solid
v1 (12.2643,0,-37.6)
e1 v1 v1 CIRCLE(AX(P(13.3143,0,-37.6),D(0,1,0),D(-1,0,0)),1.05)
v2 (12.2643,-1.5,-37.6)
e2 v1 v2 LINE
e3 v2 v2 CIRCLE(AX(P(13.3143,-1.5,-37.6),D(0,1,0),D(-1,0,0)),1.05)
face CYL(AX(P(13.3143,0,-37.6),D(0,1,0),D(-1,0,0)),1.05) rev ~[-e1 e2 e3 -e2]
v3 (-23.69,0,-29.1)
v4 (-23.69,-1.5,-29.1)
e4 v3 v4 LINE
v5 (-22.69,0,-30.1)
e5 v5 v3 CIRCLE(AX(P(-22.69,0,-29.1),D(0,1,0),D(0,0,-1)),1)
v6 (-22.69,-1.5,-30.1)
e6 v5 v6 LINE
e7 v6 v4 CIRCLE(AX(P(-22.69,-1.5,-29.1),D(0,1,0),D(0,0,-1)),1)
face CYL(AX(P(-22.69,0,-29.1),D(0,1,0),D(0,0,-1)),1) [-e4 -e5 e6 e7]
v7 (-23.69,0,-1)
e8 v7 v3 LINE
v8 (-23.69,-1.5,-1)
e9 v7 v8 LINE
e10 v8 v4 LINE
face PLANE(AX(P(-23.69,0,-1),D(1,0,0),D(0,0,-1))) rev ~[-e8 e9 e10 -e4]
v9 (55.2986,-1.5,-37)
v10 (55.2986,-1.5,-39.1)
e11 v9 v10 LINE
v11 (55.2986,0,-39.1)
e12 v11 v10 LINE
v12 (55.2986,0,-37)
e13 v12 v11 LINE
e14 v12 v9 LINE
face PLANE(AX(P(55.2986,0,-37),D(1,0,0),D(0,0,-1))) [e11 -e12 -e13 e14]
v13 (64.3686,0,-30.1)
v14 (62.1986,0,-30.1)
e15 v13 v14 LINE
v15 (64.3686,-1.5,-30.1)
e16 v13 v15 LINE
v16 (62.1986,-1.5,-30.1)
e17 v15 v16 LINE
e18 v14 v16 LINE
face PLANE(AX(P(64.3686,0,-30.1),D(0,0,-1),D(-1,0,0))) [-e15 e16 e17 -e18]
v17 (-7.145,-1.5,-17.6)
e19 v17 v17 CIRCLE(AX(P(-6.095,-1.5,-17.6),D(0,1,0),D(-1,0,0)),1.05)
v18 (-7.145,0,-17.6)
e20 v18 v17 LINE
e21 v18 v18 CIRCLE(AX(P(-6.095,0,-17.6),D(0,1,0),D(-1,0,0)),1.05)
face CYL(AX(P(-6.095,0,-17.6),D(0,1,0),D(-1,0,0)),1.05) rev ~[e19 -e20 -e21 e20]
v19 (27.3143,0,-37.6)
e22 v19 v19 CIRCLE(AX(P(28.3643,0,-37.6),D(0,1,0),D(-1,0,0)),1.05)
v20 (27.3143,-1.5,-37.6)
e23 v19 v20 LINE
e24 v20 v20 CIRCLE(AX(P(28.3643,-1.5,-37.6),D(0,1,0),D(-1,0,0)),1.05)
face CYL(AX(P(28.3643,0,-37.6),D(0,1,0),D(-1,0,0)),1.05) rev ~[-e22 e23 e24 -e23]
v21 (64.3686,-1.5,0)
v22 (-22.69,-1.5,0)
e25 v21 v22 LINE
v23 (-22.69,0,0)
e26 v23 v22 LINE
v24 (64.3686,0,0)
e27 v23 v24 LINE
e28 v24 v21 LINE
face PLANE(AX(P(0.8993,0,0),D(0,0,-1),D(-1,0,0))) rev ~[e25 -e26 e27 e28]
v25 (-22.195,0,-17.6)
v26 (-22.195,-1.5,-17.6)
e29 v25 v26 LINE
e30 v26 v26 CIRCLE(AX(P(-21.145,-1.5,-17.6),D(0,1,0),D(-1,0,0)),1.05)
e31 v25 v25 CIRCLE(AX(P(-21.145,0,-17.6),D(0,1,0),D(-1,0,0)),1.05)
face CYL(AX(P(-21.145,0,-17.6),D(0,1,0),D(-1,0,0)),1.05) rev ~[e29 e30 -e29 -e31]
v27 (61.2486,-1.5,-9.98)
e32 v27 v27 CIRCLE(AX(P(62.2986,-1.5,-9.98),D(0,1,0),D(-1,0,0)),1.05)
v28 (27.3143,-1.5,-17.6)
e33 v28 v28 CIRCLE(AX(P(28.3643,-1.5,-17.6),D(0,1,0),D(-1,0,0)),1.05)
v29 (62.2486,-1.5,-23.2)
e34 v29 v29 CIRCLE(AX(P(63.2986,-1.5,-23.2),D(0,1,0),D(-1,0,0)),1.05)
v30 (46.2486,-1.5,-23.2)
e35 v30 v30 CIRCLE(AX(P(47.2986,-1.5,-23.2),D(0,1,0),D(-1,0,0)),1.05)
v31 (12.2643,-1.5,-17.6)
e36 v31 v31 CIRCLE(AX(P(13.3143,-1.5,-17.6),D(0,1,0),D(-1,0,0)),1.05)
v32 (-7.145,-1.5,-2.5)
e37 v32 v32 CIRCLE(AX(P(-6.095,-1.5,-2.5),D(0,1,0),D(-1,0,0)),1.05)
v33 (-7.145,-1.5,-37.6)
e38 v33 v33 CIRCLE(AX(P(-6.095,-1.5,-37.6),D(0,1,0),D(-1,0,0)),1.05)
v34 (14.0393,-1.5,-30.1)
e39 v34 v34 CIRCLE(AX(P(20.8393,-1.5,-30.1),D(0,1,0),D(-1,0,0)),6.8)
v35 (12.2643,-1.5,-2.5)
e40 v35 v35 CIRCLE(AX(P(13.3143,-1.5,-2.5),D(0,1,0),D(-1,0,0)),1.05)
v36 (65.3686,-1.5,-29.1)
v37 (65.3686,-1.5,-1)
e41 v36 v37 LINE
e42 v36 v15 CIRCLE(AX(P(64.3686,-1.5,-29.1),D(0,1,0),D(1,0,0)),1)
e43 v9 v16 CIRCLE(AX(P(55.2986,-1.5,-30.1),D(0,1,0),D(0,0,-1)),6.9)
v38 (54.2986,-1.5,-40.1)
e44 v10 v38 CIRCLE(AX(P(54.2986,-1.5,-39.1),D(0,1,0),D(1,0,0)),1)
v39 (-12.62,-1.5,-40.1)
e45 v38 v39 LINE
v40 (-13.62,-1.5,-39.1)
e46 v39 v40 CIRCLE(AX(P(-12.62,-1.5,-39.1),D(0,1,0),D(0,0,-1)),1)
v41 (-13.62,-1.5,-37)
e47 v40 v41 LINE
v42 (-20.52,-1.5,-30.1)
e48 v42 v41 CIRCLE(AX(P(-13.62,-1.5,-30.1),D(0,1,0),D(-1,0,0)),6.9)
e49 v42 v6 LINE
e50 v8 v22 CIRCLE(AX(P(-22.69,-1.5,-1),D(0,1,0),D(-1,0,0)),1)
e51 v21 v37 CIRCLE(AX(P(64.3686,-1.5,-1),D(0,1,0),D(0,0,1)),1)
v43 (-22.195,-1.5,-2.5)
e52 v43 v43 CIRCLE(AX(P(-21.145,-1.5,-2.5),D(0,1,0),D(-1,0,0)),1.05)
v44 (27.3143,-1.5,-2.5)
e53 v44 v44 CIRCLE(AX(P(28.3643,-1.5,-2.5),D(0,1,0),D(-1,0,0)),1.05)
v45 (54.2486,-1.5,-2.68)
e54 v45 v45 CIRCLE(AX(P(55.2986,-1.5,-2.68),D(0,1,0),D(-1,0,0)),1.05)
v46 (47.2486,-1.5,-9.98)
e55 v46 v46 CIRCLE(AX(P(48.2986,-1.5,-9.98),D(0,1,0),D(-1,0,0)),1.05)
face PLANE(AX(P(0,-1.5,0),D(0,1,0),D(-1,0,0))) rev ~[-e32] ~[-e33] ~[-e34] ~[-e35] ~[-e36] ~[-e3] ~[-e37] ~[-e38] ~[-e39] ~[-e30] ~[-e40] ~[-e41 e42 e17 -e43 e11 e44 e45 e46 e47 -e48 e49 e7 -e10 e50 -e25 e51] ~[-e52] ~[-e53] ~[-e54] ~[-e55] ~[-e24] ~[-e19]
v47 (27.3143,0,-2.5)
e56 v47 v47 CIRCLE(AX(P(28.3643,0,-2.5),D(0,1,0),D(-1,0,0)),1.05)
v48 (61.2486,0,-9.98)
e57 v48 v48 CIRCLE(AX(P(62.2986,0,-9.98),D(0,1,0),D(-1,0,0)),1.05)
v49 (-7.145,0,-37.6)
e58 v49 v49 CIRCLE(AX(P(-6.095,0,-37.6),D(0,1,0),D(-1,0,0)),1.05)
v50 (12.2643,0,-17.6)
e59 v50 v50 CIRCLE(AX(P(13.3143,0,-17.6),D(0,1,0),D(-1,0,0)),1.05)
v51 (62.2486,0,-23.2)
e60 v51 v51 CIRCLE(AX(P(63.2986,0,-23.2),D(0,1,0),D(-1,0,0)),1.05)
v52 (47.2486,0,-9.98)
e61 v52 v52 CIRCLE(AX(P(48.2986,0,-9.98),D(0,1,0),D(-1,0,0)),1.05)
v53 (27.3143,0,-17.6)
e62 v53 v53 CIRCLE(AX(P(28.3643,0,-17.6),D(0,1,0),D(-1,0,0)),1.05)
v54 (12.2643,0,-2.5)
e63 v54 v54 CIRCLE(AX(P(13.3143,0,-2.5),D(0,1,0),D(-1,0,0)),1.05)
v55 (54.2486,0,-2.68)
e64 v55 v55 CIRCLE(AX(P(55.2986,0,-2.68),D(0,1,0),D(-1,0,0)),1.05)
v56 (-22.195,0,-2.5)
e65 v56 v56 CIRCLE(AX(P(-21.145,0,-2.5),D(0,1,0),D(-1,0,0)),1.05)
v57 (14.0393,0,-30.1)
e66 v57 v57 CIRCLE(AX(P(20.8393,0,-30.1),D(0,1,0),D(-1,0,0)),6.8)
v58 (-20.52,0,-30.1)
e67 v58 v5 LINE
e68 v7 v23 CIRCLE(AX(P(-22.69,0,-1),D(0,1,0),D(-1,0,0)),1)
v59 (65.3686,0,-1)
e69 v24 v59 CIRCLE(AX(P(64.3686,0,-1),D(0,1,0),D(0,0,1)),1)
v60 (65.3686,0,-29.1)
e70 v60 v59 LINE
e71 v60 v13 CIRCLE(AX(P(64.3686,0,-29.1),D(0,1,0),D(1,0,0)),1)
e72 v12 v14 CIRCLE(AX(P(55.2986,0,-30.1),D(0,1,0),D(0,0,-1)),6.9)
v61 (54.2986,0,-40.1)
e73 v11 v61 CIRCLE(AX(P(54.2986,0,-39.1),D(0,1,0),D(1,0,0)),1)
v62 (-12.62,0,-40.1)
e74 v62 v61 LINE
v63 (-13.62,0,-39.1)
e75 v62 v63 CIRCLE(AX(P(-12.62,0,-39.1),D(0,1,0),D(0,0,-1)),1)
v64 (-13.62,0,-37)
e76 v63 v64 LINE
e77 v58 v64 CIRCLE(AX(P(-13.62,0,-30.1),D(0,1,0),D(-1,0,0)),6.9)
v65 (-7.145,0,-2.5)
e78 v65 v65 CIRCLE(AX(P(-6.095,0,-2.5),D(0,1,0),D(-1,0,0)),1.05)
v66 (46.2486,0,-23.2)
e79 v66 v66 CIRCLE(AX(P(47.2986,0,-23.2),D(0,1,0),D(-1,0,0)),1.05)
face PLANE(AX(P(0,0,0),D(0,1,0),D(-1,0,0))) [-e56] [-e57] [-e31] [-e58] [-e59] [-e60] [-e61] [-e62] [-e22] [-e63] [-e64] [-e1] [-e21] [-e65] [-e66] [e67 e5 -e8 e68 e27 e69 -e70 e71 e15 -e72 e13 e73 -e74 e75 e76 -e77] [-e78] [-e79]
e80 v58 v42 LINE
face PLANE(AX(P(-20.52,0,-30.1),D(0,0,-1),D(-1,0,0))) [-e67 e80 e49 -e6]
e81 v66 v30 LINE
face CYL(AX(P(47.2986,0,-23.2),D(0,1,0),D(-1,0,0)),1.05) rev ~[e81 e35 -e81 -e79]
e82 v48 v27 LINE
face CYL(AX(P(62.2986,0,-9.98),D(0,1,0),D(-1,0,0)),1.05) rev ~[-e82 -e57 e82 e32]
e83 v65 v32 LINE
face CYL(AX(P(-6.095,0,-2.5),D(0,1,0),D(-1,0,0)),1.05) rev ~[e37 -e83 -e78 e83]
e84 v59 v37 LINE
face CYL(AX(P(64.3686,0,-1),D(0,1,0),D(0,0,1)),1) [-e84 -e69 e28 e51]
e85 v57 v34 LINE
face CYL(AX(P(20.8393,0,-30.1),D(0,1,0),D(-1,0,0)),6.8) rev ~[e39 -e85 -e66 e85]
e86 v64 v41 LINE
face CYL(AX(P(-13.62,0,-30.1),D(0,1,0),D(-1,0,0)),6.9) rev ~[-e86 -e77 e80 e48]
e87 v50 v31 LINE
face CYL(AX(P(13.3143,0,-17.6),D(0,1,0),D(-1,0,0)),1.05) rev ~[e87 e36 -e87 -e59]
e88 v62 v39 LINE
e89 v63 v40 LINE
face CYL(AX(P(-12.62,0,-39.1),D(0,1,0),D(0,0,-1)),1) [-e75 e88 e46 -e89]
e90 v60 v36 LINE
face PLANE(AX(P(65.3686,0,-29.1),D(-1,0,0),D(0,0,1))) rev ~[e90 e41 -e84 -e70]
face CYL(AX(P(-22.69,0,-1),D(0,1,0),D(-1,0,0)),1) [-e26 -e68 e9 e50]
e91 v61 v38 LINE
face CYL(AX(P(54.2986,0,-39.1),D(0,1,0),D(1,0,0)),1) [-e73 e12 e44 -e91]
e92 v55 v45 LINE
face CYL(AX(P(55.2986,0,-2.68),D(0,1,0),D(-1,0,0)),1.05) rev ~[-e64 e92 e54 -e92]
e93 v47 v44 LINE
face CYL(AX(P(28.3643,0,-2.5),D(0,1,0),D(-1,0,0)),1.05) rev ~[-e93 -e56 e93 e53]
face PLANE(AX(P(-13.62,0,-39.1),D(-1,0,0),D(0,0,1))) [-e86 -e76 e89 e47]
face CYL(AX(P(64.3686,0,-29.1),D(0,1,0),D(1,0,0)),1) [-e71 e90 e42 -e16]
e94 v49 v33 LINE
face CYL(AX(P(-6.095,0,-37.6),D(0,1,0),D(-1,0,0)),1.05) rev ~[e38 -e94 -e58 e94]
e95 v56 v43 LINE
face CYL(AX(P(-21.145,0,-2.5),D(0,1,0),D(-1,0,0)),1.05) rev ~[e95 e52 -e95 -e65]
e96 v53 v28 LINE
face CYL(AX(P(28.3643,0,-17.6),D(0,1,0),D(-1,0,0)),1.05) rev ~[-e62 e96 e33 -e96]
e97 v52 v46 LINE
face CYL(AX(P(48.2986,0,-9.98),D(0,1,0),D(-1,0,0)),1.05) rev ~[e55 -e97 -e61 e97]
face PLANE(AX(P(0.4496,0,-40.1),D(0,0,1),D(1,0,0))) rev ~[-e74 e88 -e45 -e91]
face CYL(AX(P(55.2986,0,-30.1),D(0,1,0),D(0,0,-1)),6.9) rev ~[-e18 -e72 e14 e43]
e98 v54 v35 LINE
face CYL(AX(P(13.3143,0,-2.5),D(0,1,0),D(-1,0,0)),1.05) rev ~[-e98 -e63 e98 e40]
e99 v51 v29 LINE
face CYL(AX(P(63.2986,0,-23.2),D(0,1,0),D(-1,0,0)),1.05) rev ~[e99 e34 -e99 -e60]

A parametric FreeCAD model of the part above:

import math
import FreeCAD as App
import Part
import Sketcher
Q = App.Units.Quantity

doc = App.newDocument("Part")
body = doc.addObject("PartDesign::Body", "Body")

sketch1 = body.newObject("Sketcher::SketchObject", "Sketch")
sketch1.AttachmentSupport = (doc.getObject("XZ_Plane"), [""])
sketch1.MapMode = "FlatFace"
sketch1.addGeometry(Part.ArcOfCircle(Part.Circle(App.Vector(-12.6, -39.1, 0), App.Vector(0, 0, 1), 1), math.radians(180), math.radians(270)), False)
sketch1.addGeometry(Part.LineSegment(App.Vector(-13.6, -39.1, 0), App.Vector(-13.6, -37, 0)), False)
sketch1.addGeometry(Part.ArcOfCircle(Part.Circle(App.Vector(-13.6, -30.1, 0), App.Vector(0, 0, 1), 6.9), math.radians(-90), math.radians(180)), False)
sketch1.addGeometry(Part.LineSegment(App.Vector(-20.5, -30.1, 0), App.Vector(-22.7, -30.1, 0)), False)
sketch1.addGeometry(Part.ArcOfCircle(Part.Circle(App.Vector(-22.7, -29.1, 0), App.Vector(0, 0, 1), 1), math.radians(180), math.radians(270)), False)
sketch1.addGeometry(Part.LineSegment(App.Vector(-23.7, -29.1, 0), App.Vector(-23.7, -1, 0)), False)
sketch1.addGeometry(Part.ArcOfCircle(Part.Circle(App.Vector(-22.7, -1, 0), App.Vector(0, 0, 1), 1), math.radians(90), math.radians(180)), False)
sketch1.addGeometry(Part.LineSegment(App.Vector(-22.7, 0, 0), App.Vector(64.4, 0, 0)), False)
sketch1.addGeometry(Part.ArcOfCircle(Part.Circle(App.Vector(64.4, -1, 0), App.Vector(0, 0, 1), 1), math.radians(0), math.radians(90)), False)
sketch1.addGeometry(Part.LineSegment(App.Vector(65.4, -1, 0), App.Vector(65.4, -29.1, 0)), False)
sketch1.addGeometry(Part.ArcOfCircle(Part.Circle(App.Vector(64.4, -29.1, 0), App.Vector(0, 0, 1), 1), math.radians(-90), math.radians(0)), False)
sketch1.addGeometry(Part.LineSegment(App.Vector(64.4, -30.1, 0), App.Vector(62.2, -30.1, 0)), False)
sketch1.addGeometry(Part.ArcOfCircle(Part.Circle(App.Vector(55.3, -30.1, 0), App.Vector(0, 0, 1), 6.9), math.radians(0), math.radians(270)), False)
sketch1.addGeometry(Part.LineSegment(App.Vector(55.3, -37, 0), App.Vector(55.3, -39.1, 0)), False)
sketch1.addGeometry(Part.ArcOfCircle(Part.Circle(App.Vector(54.3, -39.1, 0), App.Vector(0, 0, 1), 1), math.radians(-90), math.radians(0)), False)
sketch1.addGeometry(Part.LineSegment(App.Vector(54.3, -40.1, 0), App.Vector(-12.6, -40.1, 0)), False)
sketch1.addGeometry(Part.Circle(App.Vector(13.3, -2.5, 0), App.Vector(0, 0, 1), 1.1), False)
sketch1.addGeometry(Part.Circle(App.Vector(28.4, -37.6, 0), App.Vector(0, 0, 1), 1.1), False)
sketch1.addGeometry(Part.Circle(App.Vector(13.3, -37.6, 0), App.Vector(0, 0, 1), 1.1), False)
sketch1.addGeometry(Part.Circle(App.Vector(20.8, -30.1, 0), App.Vector(0, 0, 1), 6.8), False)
sketch1.addGeometry(Part.Circle(App.Vector(28.4, -17.6, 0), App.Vector(0, 0, 1), 1.1), False)
sketch1.addGeometry(Part.Circle(App.Vector(28.4, -2.5, 0), App.Vector(0, 0, 1), 1.1), False)
sketch1.addGeometry(Part.Circle(App.Vector(13.3, -17.6, 0), App.Vector(0, 0, 1), 1.1), False)
sketch1.addGeometry(Part.Circle(App.Vector(-21.1, -2.5, 0), App.Vector(0, 0, 1), 1.1), False)
sketch1.addGeometry(Part.Circle(App.Vector(-6.1, -37.6, 0), App.Vector(0, 0, 1), 1.1), False)
sketch1.addGeometry(Part.Circle(App.Vector(-6.1, -17.6, 0), App.Vector(0, 0, 1), 1.1), False)
sketch1.addGeometry(Part.Circle(App.Vector(-21.1, -17.6, 0), App.Vector(0, 0, 1), 1.1), False)
sketch1.addGeometry(Part.Circle(App.Vector(-6.1, -2.5, 0), App.Vector(0, 0, 1), 1.1), False)
sketch1.addGeometry(Part.Circle(App.Vector(55.3, -2.7, 0), App.Vector(0, 0, 1), 1.1), False)
sketch1.addGeometry(Part.Circle(App.Vector(63.3, -23.2, 0), App.Vector(0, 0, 1), 1.1), False)
sketch1.addGeometry(Part.Circle(App.Vector(47.3, -23.2, 0), App.Vector(0, 0, 1), 1.1), False)
sketch1.addGeometry(Part.Circle(App.Vector(62.3, -10, 0), App.Vector(0, 0, 1), 1.1), False)
sketch1.addGeometry(Part.Circle(App.Vector(48.3, -10, 0), App.Vector(0, 0, 1), 1.1), False)
sketch1.addConstraint(Sketcher.Constraint("Tangent", 0, 1, 1, 1))
sketch1.addConstraint(Sketcher.Constraint("Coincident", 1, 2, 2, 1))
sketch1.addConstraint(Sketcher.Constraint("Coincident", 2, 2, 3, 1))
sketch1.addConstraint(Sketcher.Constraint("Tangent", 3, 2, 4, 2))
sketch1.addConstraint(Sketcher.Constraint("Tangent", 4, 1, 5, 1))
sketch1.addConstraint(Sketcher.Constraint("Tangent", 5, 2, 6, 2))
sketch1.addConstraint(Sketcher.Constraint("Tangent", 6, 1, 7, 1))
sketch1.addConstraint(Sketcher.Constraint("Tangent", 7, 2, 8, 2))
sketch1.addConstraint(Sketcher.Constraint("Tangent", 8, 1, 9, 1))
sketch1.addConstraint(Sketcher.Constraint("Tangent", 9, 2, 10, 2))
sketch1.addConstraint(Sketcher.Constraint("Tangent", 10, 1, 11, 1))
sketch1.addConstraint(Sketcher.Constraint("Coincident", 11, 2, 12, 1))
sketch1.addConstraint(Sketcher.Constraint("Coincident", 12, 2, 13, 1))
sketch1.addConstraint(Sketcher.Constraint("Tangent", 13, 2, 14, 2))
sketch1.addConstraint(Sketcher.Constraint("Tangent", 14, 1, 15, 1))
sketch1.addConstraint(Sketcher.Constraint("Tangent", 15, 2, 0, 2))
sketch1.addConstraint(Sketcher.Constraint("Vertical", 1))
sketch1.addConstraint(Sketcher.Constraint("Horizontal", 3))
sketch1.addConstraint(Sketcher.Constraint("Vertical", 5))
sketch1.addConstraint(Sketcher.Constraint("Horizontal", 7))
sketch1.addConstraint(Sketcher.Constraint("Vertical", 9))
sketch1.addConstraint(Sketcher.Constraint("Horizontal", 11))
sketch1.addConstraint(Sketcher.Constraint("Vertical", 13))
sketch1.addConstraint(Sketcher.Constraint("Horizontal", 15))
sketch1.addConstraint(Sketcher.Constraint("Equal", 0, 4))
sketch1.addConstraint(Sketcher.Constraint("Equal", 4, 6))
sketch1.addConstraint(Sketcher.Constraint("Equal", 6, 8))
sketch1.addConstraint(Sketcher.Constraint("Equal", 8, 10))
sketch1.addConstraint(Sketcher.Constraint("Equal", 2, 12))
sketch1.addConstraint(Sketcher.Constraint("Equal", 10, 14))
sketch1.addConstraint(Sketcher.Constraint("Equal", 16, 17))
sketch1.addConstraint(Sketcher.Constraint("Equal", 17, 18))
sketch1.addConstraint(Sketcher.Constraint("Equal", 18, 20))
sketch1.addConstraint(Sketcher.Constraint("Equal", 20, 21))
sketch1.addConstraint(Sketcher.Constraint("Equal", 21, 22))
sketch1.addConstraint(Sketcher.Constraint("Equal", 22, 23))
sketch1.addConstraint(Sketcher.Constraint("Equal", 23, 24))
sketch1.addConstraint(Sketcher.Constraint("Equal", 24, 25))
sketch1.addConstraint(Sketcher.Constraint("Equal", 25, 26))
sketch1.addConstraint(Sketcher.Constraint("Equal", 26, 27))
sketch1.addConstraint(Sketcher.Constraint("Equal", 27, 28))
sketch1.addConstraint(Sketcher.Constraint("Equal", 28, 29))
sketch1.addConstraint(Sketcher.Constraint("Equal", 29, 30))
sketch1.addConstraint(Sketcher.Constraint("Equal", 30, 31))
sketch1.addConstraint(Sketcher.Constraint("Equal", 31, 32))
sketch1.addConstraint(Sketcher.Constraint("PointOnObject", 6, 1, -1))
sketch1.addConstraint(Sketcher.Constraint("Horizontal", 4, 3, 10, 3))
sketch1.addConstraint(Sketcher.Constraint("Horizontal", 2, 3, 12, 3))
sketch1.addConstraint(Sketcher.Constraint("Horizontal", 17, 3, 18, 3))
sketch1.addConstraint(Sketcher.Constraint("Horizontal", 12, 3, 19, 3))
sketch1.addConstraint(Sketcher.Constraint("Horizontal", 16, 3, 21, 3))
sketch1.addConstraint(Sketcher.Constraint("Horizontal", 20, 3, 22, 3))
sketch1.addConstraint(Sketcher.Constraint("Horizontal", 21, 3, 23, 3))
sketch1.addConstraint(Sketcher.Constraint("Horizontal", 18, 3, 24, 3))
sketch1.addConstraint(Sketcher.Constraint("Horizontal", 22, 3, 25, 3))
sketch1.addConstraint(Sketcher.Constraint("Horizontal", 25, 3, 26, 3))
sketch1.addConstraint(Sketcher.Constraint("Horizontal", 23, 3, 27, 3))
sketch1.addConstraint(Sketcher.Constraint("Horizontal", 29, 3, 30, 3))
sketch1.addConstraint(Sketcher.Constraint("Horizontal", 31, 3, 32, 3))
sketch1.addConstraint(Sketcher.Constraint("Horizontal", 19, 3, 2, 2))
sketch1.addConstraint(Sketcher.Constraint("Vertical", 16, 3, 18, 3))
sketch1.addConstraint(Sketcher.Constraint("Vertical", 17, 3, 20, 3))
sketch1.addConstraint(Sketcher.Constraint("Vertical", 20, 3, 21, 3))
sketch1.addConstraint(Sketcher.Constraint("Vertical", 18, 3, 22, 3))
sketch1.addConstraint(Sketcher.Constraint("Vertical", 24, 3, 25, 3))
sketch1.addConstraint(Sketcher.Constraint("Vertical", 23, 3, 26, 3))
sketch1.addConstraint(Sketcher.Constraint("Vertical", 25, 3, 27, 3))
sketch1.addConstraint(Sketcher.Constraint("Vertical", 12, 3, 28, 3))
sketch1.addConstraint(Sketcher.Constraint("Vertical", 2, 3, 0, 1))
sketch1.addConstraint(Sketcher.Constraint("Vertical", 28, 3, 12, 2))
sketch1.addConstraint(Sketcher.Constraint("Equal", 3, 11))
sketch1.addConstraint(Sketcher.Constraint("Radius", 0, Q("1 mm")))
sketch1.addConstraint(Sketcher.Constraint("Diameter", 16, Q("2.1 mm")))
sketch1.addConstraint(Sketcher.Constraint("Diameter", 19, Q("13.6 mm")))
sketch1.addConstraint(Sketcher.Constraint("Radius", 2, Q("6.9 mm")))
sketch1.addConstraint(Sketcher.Constraint("DistanceY", 1, 1, 1, 2, Q("2.1 mm")))
sketch1.addConstraint(Sketcher.Constraint("DistanceY", 5, 1, 5, 2, Q("28.1 mm")))
sketch1.addConstraint(Sketcher.Constraint("DistanceY", 17, 3, 20, 3, Q("20 mm")))
sketch1.addConstraint(Sketcher.Constraint("DistanceX", 12, 3, 29, 3, Q("8 mm")))
sketch1.addConstraint(Sketcher.Constraint("DistanceX", 30, 3, 12, 3, Q("8 mm")))
sketch1.addConstraint(Sketcher.Constraint("DistanceX", 28, 3, 31, 3, Q("7 mm")))
sketch1.addConstraint(Sketcher.Constraint("DistanceX", 32, 3, 28, 3, Q("7 mm")))
sketch1.addConstraint(Sketcher.Constraint("DistanceX", 3, 2, 3, 1, Q("2.17 mm")))
sketch1.addConstraint(Sketcher.Constraint("DistanceY", 16, 3, -1, 1, Q("2.5 mm")))
sketch1.addConstraint(Sketcher.Constraint("DistanceY", 17, 3, -1, 1, Q("37.6 mm")))
sketch1.addConstraint(Sketcher.Constraint("DistanceY", 29, 3, -1, 1, Q("23.2 mm")))
sketch1.addConstraint(Sketcher.Constraint("DistanceY", 31, 3, 28, 3, Q("7.3 mm")))
sketch1.addConstraint(Sketcher.Constraint("DistanceX", 0, 3, -1, 1, Q("12.62 mm")))
sketch1.addConstraint(Sketcher.Constraint("DistanceY", 28, 3, -1, 1, Q("2.68 mm")))
sketch1.addConstraint(Sketcher.Constraint("DistanceX", 16, 3, 17, 3, Q("15.05 mm")))
sketch1.addConstraint(Sketcher.Constraint("DistanceX", 23, 3, 25, 3, Q("15.05 mm")))
sketch1.addConstraint(Sketcher.Constraint("DistanceX", 7, 1, 7, 2, Q("87.0586 mm")))
sketch1.addConstraint(Sketcher.Constraint("DistanceX", 23, 3, -1, 1, Q("21.145 mm")))
sketch1.addConstraint(Sketcher.Constraint("DistanceX", 19, 3, 17, 3, Q("7.525 mm")))
sketch1.addConstraint(Sketcher.Constraint("DistanceX", -1, 1, 16, 3, Q("13.3143 mm")))
pad1 = body.newObject("PartDesign::Pad", "Pad")
pad1.Profile = sketch1
pad1.Length = 1.5

doc.recompute()
